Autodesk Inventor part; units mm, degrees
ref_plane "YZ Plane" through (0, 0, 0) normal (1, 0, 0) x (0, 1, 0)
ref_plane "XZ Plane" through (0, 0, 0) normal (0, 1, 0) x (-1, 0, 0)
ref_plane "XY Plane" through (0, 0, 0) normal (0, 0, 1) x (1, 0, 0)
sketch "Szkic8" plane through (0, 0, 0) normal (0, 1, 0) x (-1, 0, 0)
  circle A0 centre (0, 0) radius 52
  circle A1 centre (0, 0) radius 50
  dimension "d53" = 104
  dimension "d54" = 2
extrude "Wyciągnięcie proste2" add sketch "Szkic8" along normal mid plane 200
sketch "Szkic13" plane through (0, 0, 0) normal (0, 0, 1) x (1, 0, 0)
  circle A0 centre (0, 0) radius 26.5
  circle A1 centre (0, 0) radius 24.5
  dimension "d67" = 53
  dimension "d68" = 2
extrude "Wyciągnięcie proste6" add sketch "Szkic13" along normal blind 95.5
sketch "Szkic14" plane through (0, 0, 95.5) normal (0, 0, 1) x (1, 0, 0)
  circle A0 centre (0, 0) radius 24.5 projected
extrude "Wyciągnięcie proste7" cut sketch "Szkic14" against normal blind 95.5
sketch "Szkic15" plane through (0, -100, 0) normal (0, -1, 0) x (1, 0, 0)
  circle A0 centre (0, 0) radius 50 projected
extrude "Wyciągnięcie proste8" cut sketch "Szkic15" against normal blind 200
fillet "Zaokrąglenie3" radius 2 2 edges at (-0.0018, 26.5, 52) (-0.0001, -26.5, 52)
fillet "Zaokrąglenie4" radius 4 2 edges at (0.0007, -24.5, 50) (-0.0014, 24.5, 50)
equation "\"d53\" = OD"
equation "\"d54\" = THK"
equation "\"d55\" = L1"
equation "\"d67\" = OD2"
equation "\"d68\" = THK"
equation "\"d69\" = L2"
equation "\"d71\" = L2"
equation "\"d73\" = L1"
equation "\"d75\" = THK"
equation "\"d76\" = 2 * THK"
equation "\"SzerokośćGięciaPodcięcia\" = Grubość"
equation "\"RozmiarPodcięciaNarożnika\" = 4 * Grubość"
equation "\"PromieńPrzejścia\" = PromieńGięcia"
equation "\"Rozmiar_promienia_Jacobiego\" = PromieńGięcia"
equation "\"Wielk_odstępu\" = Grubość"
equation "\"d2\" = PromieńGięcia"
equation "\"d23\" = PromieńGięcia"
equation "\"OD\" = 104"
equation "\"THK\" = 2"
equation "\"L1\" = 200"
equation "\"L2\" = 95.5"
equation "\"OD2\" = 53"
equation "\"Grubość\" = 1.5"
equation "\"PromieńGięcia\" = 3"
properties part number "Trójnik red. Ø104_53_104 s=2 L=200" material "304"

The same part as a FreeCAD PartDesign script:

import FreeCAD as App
import Part
import Sketcher
from FreeCAD import Vector
Q = App.Units.Quantity


def edges_at(feature, points):
    """Names of the edges that pass closest to the given points."""
    edges = feature.Shape.Edges
    near = lambda p: min(range(len(edges)), key=lambda i: edges[i].distToShape(Part.Vertex(*p))[0])
    return sorted({f"Edge{near(p) + 1}" for p in points})

doc = App.newDocument("Part")
body = doc.addObject("PartDesign::Body", "Body")

# Sketch on XZ plane
sketch1 = doc.addObject("Sketcher::SketchObject", "Sketch")
body.addObject(sketch1)
sketch1.AttachmentSupport = (doc.XZ_Plane, [""])
sketch1.MapMode = "FlatFace"
sketch1.addGeometry([
    Part.Circle(Vector(0, 0, 0), Vector(0, 0, 1), 52),
    Part.Circle(Vector(0, 0, 0), Vector(0, 0, 1), 50),
], False)
sketch1.addConstraint([
    Sketcher.Constraint("Coincident", 0, 3, -1, 1),
    Sketcher.Constraint("Coincident", 1, 3, -1, 1),
    Sketcher.Constraint("Diameter", 0, Q("104 mm")),
    Sketcher.Constraint("Diameter", 1, Q("100 mm")),
])
pad1 = doc.addObject("PartDesign::Pad", "Pad")
body.addObject(pad1)
pad1.Profile = sketch1
pad1.Length = 200
pad1.Midplane = True

# Sketch on XY plane
sketch2 = doc.addObject("Sketcher::SketchObject", "Sketch001")
body.addObject(sketch2)
sketch2.AttachmentSupport = (doc.XY_Plane, [""])
sketch2.MapMode = "FlatFace"
sketch2.addGeometry([
    Part.Circle(Vector(0, 0, 0), Vector(0, 0, 1), 26.5),
    Part.Circle(Vector(0, 0, 0), Vector(0, 0, 1), 24.5),
], False)
sketch2.addConstraint([
    Sketcher.Constraint("Coincident", 0, 3, -1, 1),
    Sketcher.Constraint("Coincident", 1, 3, -1, 1),
    Sketcher.Constraint("Diameter", 0, Q("53 mm")),
    Sketcher.Constraint("Diameter", 1, Q("49 mm")),
])
pad2 = doc.addObject("PartDesign::Pad", "Pad001")
body.addObject(pad2)
pad2.Profile = sketch2
pad2.Length = 95.5

# Sketch on XY plane
sketch3 = doc.addObject("Sketcher::SketchObject", "Sketch002")
body.addObject(sketch3)
sketch3.AttachmentSupport = (doc.XY_Plane, [""])
sketch3.MapMode = "FlatFace"
sketch3.AttachmentOffset = App.Placement(Vector(0, 0, 95.5), App.Rotation())
sketch3.addGeometry(Part.Circle(Vector(0, 0, 0), Vector(0, 0, 1), 24.5), False)
sketch3.addConstraint([
    Sketcher.Constraint("Coincident", 0, 3, -1, 1),
    Sketcher.Constraint("Diameter", 0, Q("49 mm")),
])
pocket1 = doc.addObject("PartDesign::Pocket", "Pocket")
body.addObject(pocket1)
pocket1.Profile = sketch3
pocket1.Length = 95.5

# Sketch on XZ plane
sketch4 = doc.addObject("Sketcher::SketchObject", "Sketch003")
body.addObject(sketch4)
sketch4.AttachmentSupport = (doc.XZ_Plane, [""])
sketch4.MapMode = "FlatFace"
sketch4.AttachmentOffset = App.Placement(Vector(0, 0, 100), App.Rotation())
sketch4.addGeometry(Part.Circle(Vector(0, 0, 0), Vector(0, 0, 1), 50), False)
sketch4.addConstraint([
    Sketcher.Constraint("Coincident", 0, 3, -1, 1),
    Sketcher.Constraint("Diameter", 0, Q("100 mm")),
])
pocket2 = doc.addObject("PartDesign::Pocket", "Pocket001")
body.addObject(pocket2)
pocket2.Profile = sketch4
pocket2.Length = 200
doc.recompute()

fillet = doc.addObject("PartDesign::Fillet", "Fillet")
body.addObject(fillet)
fillet.Base = (pocket2, edges_at(pocket2, [(-0.002, 26.5, 52), (0, -26.5, 52)]))
fillet.Radius = 2
doc.recompute()

fillet2 = doc.addObject("PartDesign::Fillet", "Fillet001")
body.addObject(fillet2)
fillet2.Base = (fillet, edges_at(fillet, [(0.001, -24.5, 50), (-0.001, 24.5, 50)]))
fillet2.Radius = 4

doc.recompute()
